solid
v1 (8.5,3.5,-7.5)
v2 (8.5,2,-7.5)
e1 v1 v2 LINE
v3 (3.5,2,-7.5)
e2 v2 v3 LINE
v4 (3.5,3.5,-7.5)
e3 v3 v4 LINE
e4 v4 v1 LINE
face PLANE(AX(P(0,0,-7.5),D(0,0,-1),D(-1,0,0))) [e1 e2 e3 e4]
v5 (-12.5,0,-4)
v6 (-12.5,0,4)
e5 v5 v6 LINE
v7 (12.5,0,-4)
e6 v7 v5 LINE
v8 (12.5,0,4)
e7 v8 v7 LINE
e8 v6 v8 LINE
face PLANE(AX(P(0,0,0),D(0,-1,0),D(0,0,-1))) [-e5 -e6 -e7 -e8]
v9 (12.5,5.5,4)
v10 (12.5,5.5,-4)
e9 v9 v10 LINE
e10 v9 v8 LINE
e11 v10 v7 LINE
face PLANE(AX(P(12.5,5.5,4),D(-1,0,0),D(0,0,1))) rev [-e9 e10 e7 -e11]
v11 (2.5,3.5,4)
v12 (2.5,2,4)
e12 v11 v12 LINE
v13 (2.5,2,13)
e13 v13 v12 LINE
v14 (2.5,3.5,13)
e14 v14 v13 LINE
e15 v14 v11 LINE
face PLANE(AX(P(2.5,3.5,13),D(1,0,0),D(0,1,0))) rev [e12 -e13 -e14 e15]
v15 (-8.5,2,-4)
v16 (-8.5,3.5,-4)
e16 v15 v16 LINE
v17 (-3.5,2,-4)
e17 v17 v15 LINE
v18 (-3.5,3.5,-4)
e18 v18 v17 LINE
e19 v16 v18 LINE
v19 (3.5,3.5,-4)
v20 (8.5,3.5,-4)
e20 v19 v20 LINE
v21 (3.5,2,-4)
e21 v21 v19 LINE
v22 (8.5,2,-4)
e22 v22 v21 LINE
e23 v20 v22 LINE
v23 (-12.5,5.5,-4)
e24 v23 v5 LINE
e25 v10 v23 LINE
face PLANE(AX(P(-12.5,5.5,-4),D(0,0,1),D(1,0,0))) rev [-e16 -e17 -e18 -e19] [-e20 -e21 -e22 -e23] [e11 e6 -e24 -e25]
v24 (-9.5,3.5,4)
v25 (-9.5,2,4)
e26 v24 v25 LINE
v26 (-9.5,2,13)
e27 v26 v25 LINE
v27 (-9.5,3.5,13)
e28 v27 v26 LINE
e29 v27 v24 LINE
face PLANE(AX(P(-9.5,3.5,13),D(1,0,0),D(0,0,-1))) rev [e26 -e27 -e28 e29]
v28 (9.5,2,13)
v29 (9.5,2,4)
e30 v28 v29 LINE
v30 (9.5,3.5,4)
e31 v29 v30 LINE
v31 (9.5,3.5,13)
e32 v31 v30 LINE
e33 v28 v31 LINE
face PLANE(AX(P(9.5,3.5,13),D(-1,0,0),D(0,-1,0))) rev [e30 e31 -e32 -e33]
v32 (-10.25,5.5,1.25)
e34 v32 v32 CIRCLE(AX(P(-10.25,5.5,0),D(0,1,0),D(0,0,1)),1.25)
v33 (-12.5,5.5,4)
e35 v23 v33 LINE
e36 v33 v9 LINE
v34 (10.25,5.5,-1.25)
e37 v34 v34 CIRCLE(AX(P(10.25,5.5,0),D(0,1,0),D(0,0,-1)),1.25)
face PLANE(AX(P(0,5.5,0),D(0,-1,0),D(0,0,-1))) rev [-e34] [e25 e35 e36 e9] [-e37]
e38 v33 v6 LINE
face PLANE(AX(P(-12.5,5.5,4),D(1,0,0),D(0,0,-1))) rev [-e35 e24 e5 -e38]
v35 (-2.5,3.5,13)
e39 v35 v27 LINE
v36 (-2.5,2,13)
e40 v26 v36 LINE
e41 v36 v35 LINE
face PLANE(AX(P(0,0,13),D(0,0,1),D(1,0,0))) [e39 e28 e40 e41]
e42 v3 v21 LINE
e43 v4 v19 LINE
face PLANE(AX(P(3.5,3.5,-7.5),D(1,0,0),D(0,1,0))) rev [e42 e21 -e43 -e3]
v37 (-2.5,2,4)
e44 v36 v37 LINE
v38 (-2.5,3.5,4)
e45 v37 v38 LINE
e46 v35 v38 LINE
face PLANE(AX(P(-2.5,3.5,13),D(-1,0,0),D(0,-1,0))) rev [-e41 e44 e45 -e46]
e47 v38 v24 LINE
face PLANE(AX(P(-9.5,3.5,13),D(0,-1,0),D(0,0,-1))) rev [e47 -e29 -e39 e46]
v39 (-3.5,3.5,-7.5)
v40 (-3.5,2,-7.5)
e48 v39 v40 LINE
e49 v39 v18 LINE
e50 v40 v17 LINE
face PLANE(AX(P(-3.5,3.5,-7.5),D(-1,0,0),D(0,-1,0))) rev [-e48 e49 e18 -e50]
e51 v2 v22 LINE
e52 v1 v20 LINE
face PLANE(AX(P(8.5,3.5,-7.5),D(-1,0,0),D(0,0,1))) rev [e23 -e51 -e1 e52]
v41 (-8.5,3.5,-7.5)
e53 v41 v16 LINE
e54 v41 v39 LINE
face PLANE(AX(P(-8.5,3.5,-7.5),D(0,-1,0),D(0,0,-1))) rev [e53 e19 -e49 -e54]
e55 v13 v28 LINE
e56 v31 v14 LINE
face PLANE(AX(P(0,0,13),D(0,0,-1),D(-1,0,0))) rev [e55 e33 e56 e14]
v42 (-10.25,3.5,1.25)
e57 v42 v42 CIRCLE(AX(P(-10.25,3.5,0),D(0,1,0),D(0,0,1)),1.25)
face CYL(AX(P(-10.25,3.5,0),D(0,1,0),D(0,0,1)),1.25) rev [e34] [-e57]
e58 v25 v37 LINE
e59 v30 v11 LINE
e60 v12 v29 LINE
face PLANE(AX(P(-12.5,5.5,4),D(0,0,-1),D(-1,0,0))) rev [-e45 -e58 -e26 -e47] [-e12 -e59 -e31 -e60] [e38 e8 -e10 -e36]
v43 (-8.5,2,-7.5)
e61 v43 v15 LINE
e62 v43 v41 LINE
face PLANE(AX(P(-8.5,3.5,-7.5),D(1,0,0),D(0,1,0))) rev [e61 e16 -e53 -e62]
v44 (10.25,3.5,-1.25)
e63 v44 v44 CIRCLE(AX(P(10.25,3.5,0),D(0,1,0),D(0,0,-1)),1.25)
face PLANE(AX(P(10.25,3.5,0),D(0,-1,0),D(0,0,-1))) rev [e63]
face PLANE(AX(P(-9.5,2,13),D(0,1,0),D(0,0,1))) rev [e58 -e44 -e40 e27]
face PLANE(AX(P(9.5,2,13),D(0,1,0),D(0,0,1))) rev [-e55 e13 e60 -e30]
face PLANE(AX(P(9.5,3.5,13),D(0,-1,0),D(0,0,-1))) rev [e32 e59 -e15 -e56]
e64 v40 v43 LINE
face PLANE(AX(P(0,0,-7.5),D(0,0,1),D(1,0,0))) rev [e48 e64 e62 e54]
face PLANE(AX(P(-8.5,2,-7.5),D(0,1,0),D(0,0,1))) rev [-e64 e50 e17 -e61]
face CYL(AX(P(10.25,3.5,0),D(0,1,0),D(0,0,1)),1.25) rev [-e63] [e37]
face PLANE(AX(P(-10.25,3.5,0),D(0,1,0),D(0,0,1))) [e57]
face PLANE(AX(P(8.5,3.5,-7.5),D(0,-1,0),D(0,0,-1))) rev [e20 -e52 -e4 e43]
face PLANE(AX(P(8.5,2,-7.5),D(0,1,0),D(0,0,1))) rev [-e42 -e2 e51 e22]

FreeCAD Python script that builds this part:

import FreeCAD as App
import Part
import Sketcher
Q = App.Units.Quantity

doc = App.newDocument("Part")
params = doc.addObject("Spreadsheet::Sheet", "Params")
for row, (alias, value) in enumerate([
    ("sketch1_width", "25 mm"),
    ("sketch1_height", "8 mm"),
    ("pad1_length", "5.5 mm"),
    ("sketch2_width", "7 mm"),
    ("sketch2_height", "1.5 mm"),
    ("pad2_length", "9 mm"),
    ("sketch3_width", "5 mm"),
    ("sketch3_height", "1.5 mm"),
    ("pad3_length", "3.5 mm"),
    ("sketch4_diameter", "2.5 mm"),
    ("pocket1_length", "2 mm"),
], start=1):
    params.set(f"A{row}", alias)
    params.set(f"B{row}", "=" + value)
    params.setAlias(f"B{row}", alias)

body = doc.addObject("PartDesign::Body", "Body")

sketch1 = doc.addObject("Sketcher::SketchObject", "Sketch")
body.addObject(sketch1)
sketch1.AttachmentSupport = (doc.XZ_Plane, [""])
sketch1.MapMode = "FlatFace"
sketch1.addGeometry([
    Part.LineSegment(App.Vector(-12, -4, 0), App.Vector(-12, 4, 0)),
    Part.LineSegment(App.Vector(-12, 4, 0), App.Vector(12, 4, 0)),
    Part.LineSegment(App.Vector(12, 4, 0), App.Vector(12, -4, 0)),
    Part.LineSegment(App.Vector(12, -4, 0), App.Vector(-12, -4, 0)),
], False)
sketch1.addConstraint([
    Sketcher.Constraint("Coincident", 0, 2, 1, 1),
    Sketcher.Constraint("Coincident", 1, 2, 2, 1),
    Sketcher.Constraint("Coincident", 2, 2, 3, 1),
    Sketcher.Constraint("Coincident", 3, 2, 0, 1),
    Sketcher.Constraint("Vertical", 0),
    Sketcher.Constraint("Horizontal", 1),
    Sketcher.Constraint("Vertical", 2),
    Sketcher.Constraint("Horizontal", 3),
    Sketcher.Constraint("Symmetric", 0, 2, 2, 2, -1, 1),
    Sketcher.Constraint("DistanceX", 1, 1, 1, 2, Q("25 mm")),
    Sketcher.Constraint("DistanceY", 0, 1, 0, 2, Q("8 mm")),
])
sketch1.setExpression("Constraints[9]", "Params.sketch1_width")
sketch1.setExpression("Constraints[10]", "Params.sketch1_height")
pad1 = doc.addObject("PartDesign::Pad", "Pad")
body.addObject(pad1)
pad1.Profile = sketch1
pad1.setExpression("Length", "Params.pad1_length")
pad1.Reversed = True

sketch2 = doc.addObject("Sketcher::SketchObject", "Sketch001")
body.addObject(sketch2)
sketch2.AttachmentSupport = (doc.XY_Plane, [""])
sketch2.MapMode = "FlatFace"
sketch2.AttachmentOffset = App.Placement(App.Vector(0, 0, 4), App.Rotation())
sketch2.addGeometry([
    Part.LineSegment(App.Vector(-9.5, 3.5, 0), App.Vector(-9.5, 2, 0)),
    Part.LineSegment(App.Vector(-9.5, 2, 0), App.Vector(-2.5, 2, 0)),
    Part.LineSegment(App.Vector(-2.5, 2, 0), App.Vector(-2.5, 3.5, 0)),
    Part.LineSegment(App.Vector(-2.5, 3.5, 0), App.Vector(-9.5, 3.5, 0)),
    Part.LineSegment(App.Vector(2.5, 3.5, 0), App.Vector(2.5, 2, 0)),
    Part.LineSegment(App.Vector(2.5, 2, 0), App.Vector(9.5, 2, 0)),
    Part.LineSegment(App.Vector(9.5, 2, 0), App.Vector(9.5, 3.5, 0)),
    Part.LineSegment(App.Vector(9.5, 3.5, 0), App.Vector(2.5, 3.5, 0)),
], False)
sketch2.addConstraint([
    Sketcher.Constraint("Coincident", 0, 2, 1, 1),
    Sketcher.Constraint("Coincident", 1, 2, 2, 1),
    Sketcher.Constraint("Coincident", 2, 2, 3, 1),
    Sketcher.Constraint("Coincident", 3, 2, 0, 1),
    Sketcher.Constraint("Coincident", 4, 2, 5, 1),
    Sketcher.Constraint("Coincident", 5, 2, 6, 1),
    Sketcher.Constraint("Coincident", 6, 2, 7, 1),
    Sketcher.Constraint("Coincident", 7, 2, 4, 1),
    Sketcher.Constraint("Vertical", 0),
    Sketcher.Constraint("Horizontal", 1),
    Sketcher.Constraint("Vertical", 2),
    Sketcher.Constraint("Horizontal", 3),
    Sketcher.Constraint("Vertical", 4),
    Sketcher.Constraint("Horizontal", 5),
    Sketcher.Constraint("Vertical", 6),
    Sketcher.Constraint("Horizontal", 7),
    Sketcher.Constraint("Symmetric", 1, 2, 4, 2, -2),
    Sketcher.Constraint("Symmetric", 3, 2, 6, 2, -2),
    Sketcher.Constraint("DistanceX", 1, 1, 1, 2, Q("7 mm")),
    Sketcher.Constraint("DistanceY", 0, 2, 0, 1, Q("1.5 mm")),
    Sketcher.Constraint("DistanceY", -1, 1, 0, 2, Q("2 mm")),
    Sketcher.Constraint("DistanceX", 1, 2, 4, 2, Q("5 mm")),
])
sketch2.setExpression("Constraints[18]", "Params.sketch2_width")
sketch2.setExpression("Constraints[19]", "Params.sketch2_height")
pad2 = doc.addObject("PartDesign::Pad", "Pad001")
body.addObject(pad2)
pad2.Profile = sketch2
pad2.setExpression("Length", "Params.pad2_length")

sketch3 = doc.addObject("Sketcher::SketchObject", "Sketch002")
body.addObject(sketch3)
sketch3.AttachmentSupport = (doc.XY_Plane, [""])
sketch3.MapMode = "FlatFace"
sketch3.AttachmentOffset = App.Placement(App.Vector(0, 0, -4), App.Rotation())
sketch3.addGeometry([
    Part.LineSegment(App.Vector(8.5, 3.5, 0), App.Vector(8.5, 2, 0)),
    Part.LineSegment(App.Vector(8.5, 2, 0), App.Vector(3.5, 2, 0)),
    Part.LineSegment(App.Vector(3.5, 2, 0), App.Vector(3.5, 3.5, 0)),
    Part.LineSegment(App.Vector(3.5, 3.5, 0), App.Vector(8.5, 3.5, 0)),
    Part.LineSegment(App.Vector(-3.5, 3.5, 0), App.Vector(-3.5, 2, 0)),
    Part.LineSegment(App.Vector(-3.5, 2, 0), App.Vector(-8.5, 2, 0)),
    Part.LineSegment(App.Vector(-8.5, 2, 0), App.Vector(-8.5, 3.5, 0)),
    Part.LineSegment(App.Vector(-8.5, 3.5, 0), App.Vector(-3.5, 3.5, 0)),
], False)
sketch3.addConstraint([
    Sketcher.Constraint("Coincident", 0, 2, 1, 1),
    Sketcher.Constraint("Coincident", 1, 2, 2, 1),
    Sketcher.Constraint("Coincident", 2, 2, 3, 1),
    Sketcher.Constraint("Coincident", 3, 2, 0, 1),
    Sketcher.Constraint("Coincident", 4, 2, 5, 1),
    Sketcher.Constraint("Coincident", 5, 2, 6, 1),
    Sketcher.Constraint("Coincident", 6, 2, 7, 1),
    Sketcher.Constraint("Coincident", 7, 2, 4, 1),
    Sketcher.Constraint("Vertical", 0),
    Sketcher.Constraint("Horizontal", 1),
    Sketcher.Constraint("Vertical", 2),
    Sketcher.Constraint("Horizontal", 3),
    Sketcher.Constraint("Vertical", 4),
    Sketcher.Constraint("Horizontal", 5),
    Sketcher.Constraint("Vertical", 6),
    Sketcher.Constraint("Horizontal", 7),
    Sketcher.Constraint("Symmetric", 1, 2, 4, 2, -2),
    Sketcher.Constraint("Symmetric", 3, 2, 6, 2, -2),
    Sketcher.Constraint("DistanceX", 1, 2, 1, 1, Q("5 mm")),
    Sketcher.Constraint("DistanceY", 0, 2, 0, 1, Q("1.5 mm")),
    Sketcher.Constraint("DistanceY", -1, 1, 0, 2, Q("2 mm")),
    Sketcher.Constraint("DistanceX", 4, 2, 1, 2, Q("7 mm")),
])
sketch3.setExpression("Constraints[18]", "Params.sketch3_width")
sketch3.setExpression("Constraints[19]", "Params.sketch3_height")
pad3 = doc.addObject("PartDesign::Pad", "Pad002")
body.addObject(pad3)
pad3.Profile = sketch3
pad3.setExpression("Length", "Params.pad3_length")
pad3.Reversed = True

sketch4 = doc.addObject("Sketcher::SketchObject", "Sketch003")
body.addObject(sketch4)
sketch4.AttachmentSupport = (doc.XZ_Plane, [""])
sketch4.MapMode = "FlatFace"
sketch4.AttachmentOffset = App.Placement(App.Vector(0, 0, -5.5), App.Rotation())
sketch4.addGeometry([
    Part.Circle(App.Vector(-10.2, 0, 0), App.Vector(0, 0, 1), 1.2),
    Part.Circle(App.Vector(10.2, 0, 0), App.Vector(0, 0, 1), 1.2),
], False)
sketch4.addConstraint([
    Sketcher.Constraint("Equal", 0, 1),
    Sketcher.Constraint("Symmetric", 0, 3, 1, 3, -1, 1),
    Sketcher.Constraint("PointOnObject", 0, 3, -1),
    Sketcher.Constraint("Diameter", 0, Q("2.5 mm")),
    Sketcher.Constraint("DistanceX", 0, 3, 1, 3, Q("20.5 mm")),
])
sketch4.setExpression("Constraints[3]", "Params.sketch4_diameter")
pocket1 = doc.addObject("PartDesign::Pocket", "Pocket")
body.addObject(pocket1)
pocket1.Profile = sketch4
pocket1.setExpression("Length", "Params.pocket1_length")
pocket1.Reversed = True

doc.recompute()
